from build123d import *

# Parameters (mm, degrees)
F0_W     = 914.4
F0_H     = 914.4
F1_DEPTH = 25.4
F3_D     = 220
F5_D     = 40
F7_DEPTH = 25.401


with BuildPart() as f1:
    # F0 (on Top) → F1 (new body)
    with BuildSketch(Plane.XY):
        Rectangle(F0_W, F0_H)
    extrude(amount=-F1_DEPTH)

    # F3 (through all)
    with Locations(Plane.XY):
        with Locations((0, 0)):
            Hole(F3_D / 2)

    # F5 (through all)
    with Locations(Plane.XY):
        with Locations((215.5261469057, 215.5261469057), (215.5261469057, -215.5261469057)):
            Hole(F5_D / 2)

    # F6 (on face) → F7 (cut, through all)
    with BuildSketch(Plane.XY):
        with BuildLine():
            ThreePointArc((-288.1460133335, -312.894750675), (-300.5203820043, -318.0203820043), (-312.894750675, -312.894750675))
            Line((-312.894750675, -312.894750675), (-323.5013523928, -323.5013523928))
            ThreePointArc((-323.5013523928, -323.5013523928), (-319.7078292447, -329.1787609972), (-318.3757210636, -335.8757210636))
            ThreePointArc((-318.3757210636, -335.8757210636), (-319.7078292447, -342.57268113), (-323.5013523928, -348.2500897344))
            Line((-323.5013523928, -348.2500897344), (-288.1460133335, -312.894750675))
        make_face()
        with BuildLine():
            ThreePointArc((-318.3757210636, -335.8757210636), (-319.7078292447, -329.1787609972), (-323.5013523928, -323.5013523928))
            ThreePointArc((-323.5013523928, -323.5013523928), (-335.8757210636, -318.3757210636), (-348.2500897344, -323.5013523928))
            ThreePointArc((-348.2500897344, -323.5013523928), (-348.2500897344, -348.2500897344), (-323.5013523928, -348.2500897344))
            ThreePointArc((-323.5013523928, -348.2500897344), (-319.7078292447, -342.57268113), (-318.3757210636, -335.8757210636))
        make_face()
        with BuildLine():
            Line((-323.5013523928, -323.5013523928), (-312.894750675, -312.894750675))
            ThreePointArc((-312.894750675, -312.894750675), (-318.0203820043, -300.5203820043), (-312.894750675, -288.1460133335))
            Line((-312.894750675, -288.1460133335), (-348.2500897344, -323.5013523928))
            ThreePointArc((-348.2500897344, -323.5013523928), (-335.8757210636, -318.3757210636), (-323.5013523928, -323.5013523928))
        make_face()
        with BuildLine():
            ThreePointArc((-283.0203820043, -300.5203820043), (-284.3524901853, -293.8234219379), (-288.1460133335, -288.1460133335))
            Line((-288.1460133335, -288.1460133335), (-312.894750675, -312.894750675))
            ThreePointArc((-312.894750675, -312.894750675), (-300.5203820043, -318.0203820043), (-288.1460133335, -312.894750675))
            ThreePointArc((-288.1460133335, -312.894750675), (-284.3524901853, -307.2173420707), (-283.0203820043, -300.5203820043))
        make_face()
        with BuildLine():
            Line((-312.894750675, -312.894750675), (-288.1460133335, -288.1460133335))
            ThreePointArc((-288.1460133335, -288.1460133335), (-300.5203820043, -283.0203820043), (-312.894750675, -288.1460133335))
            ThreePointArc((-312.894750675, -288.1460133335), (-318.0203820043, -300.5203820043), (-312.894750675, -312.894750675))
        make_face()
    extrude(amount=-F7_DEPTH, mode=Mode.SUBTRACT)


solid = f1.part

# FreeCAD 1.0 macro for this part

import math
import FreeCAD as App
import Part
import Sketcher
Q = App.Units.Quantity

doc = App.newDocument("Part")
body = doc.addObject("PartDesign::Body", "Body")

# Sketch on XY plane
sketch1 = body.newObject("Sketcher::SketchObject", "Sketch")
sketch1.AttachmentSupport = (doc.getObject("XY_Plane"), [""])
sketch1.MapMode = "FlatFace"
sketch1.addGeometry(Part.LineSegment(App.Vector(-457.2, 457.2, 0), App.Vector(-457.2, -457.2, 0)), False)
sketch1.addGeometry(Part.LineSegment(App.Vector(-457.2, -457.2, 0), App.Vector(457.2, -457.2, 0)), False)
sketch1.addGeometry(Part.LineSegment(App.Vector(457.2, -457.2, 0), App.Vector(457.2, 457.2, 0)), False)
sketch1.addGeometry(Part.LineSegment(App.Vector(457.2, 457.2, 0), App.Vector(-457.2, 457.2, 0)), False)
sketch1.addConstraint(Sketcher.Constraint("Coincident", 0, 2, 1, 1))
sketch1.addConstraint(Sketcher.Constraint("Coincident", 1, 2, 2, 1))
sketch1.addConstraint(Sketcher.Constraint("Coincident", 2, 2, 3, 1))
sketch1.addConstraint(Sketcher.Constraint("Coincident", 3, 2, 0, 1))
sketch1.addConstraint(Sketcher.Constraint("Vertical", 0))
sketch1.addConstraint(Sketcher.Constraint("Horizontal", 1))
sketch1.addConstraint(Sketcher.Constraint("Vertical", 2))
sketch1.addConstraint(Sketcher.Constraint("Horizontal", 3))
sketch1.addConstraint(Sketcher.Constraint("Symmetric", 0, 2, 2, 2, -1, 1))
sketch1.addConstraint(Sketcher.Constraint("Equal", 3, 0))
sketch1.addConstraint(Sketcher.Constraint("DistanceX", 1, 1, 1, 2, 914.4))
pad1 = body.newObject("PartDesign::Pad", "Pad")
pad1.Profile = sketch1
pad1.Length = 25.4
pad1.Reversed = True

# Sketch on XY plane
sketch2 = body.newObject("Sketcher::SketchObject", "Sketch001")
sketch2.AttachmentSupport = (doc.getObject("XY_Plane"), [""])
sketch2.MapMode = "FlatFace"
sketch2.addGeometry(Part.Circle(App.Vector(0, 0, 0), App.Vector(0, 0, 1), 110), False)
sketch2.addConstraint(Sketcher.Constraint("Coincident", 0, 3, -1, 1))
sketch2.addConstraint(Sketcher.Constraint("Diameter", 0, 220.0))
doc.recompute()
hole = body.newObject("PartDesign::Hole", "Hole")
hole.Profile = sketch2
hole.ThreadType = "None"
hole.Diameter = 220
hole.DepthType = "ThroughAll"

# Sketch on XY plane
sketch3 = body.newObject("Sketcher::SketchObject", "Sketch002")
sketch3.AttachmentSupport = (doc.getObject("XY_Plane"), [""])
sketch3.MapMode = "FlatFace"
sketch3.addGeometry(Part.Circle(App.Vector(215.526147, 215.526147, 0), App.Vector(0, 0, 1), 20), False)
sketch3.addGeometry(Part.Circle(App.Vector(215.526147, -215.526147, 0), App.Vector(0, 0, 1), 20), False)
sketch3.addConstraint(Sketcher.Constraint("Equal", 0, 1))
sketch3.addConstraint(Sketcher.Constraint("Symmetric", 0, 3, 1, 3, -1))
sketch3.addConstraint(Sketcher.Constraint("Diameter", 0, 40.0))
sketch3.addConstraint(Sketcher.Constraint("DistanceX", -1, 1, 0, 3, 215.526147))
sketch3.addConstraint(Sketcher.Constraint("DistanceY", -1, 1, 0, 3, 215.526147))
doc.recompute()
hole2 = body.newObject("PartDesign::Hole", "Hole001")
hole2.Profile = sketch3
hole2.ThreadType = "None"
hole2.Diameter = 40
hole2.DepthType = "ThroughAll"

# Sketch on XY plane
sketch4 = body.newObject("Sketcher::SketchObject", "Sketch003")
sketch4.AttachmentSupport = (doc.getObject("XY_Plane"), [""])
sketch4.MapMode = "FlatFace"
sketch4.addGeometry(Part.LineSegment(App.Vector(-312.894751, -288.146013, 0), App.Vector(-348.25009, -323.501352, 0)), False)
sketch4.addGeometry(Part.ArcOfCircle(Part.Circle(App.Vector(-335.875721, -335.875721, 0), App.Vector(0, 0, 1), 17.5), math.radians(135), math.radians(315)), False)
sketch4.addGeometry(Part.LineSegment(App.Vector(-323.501352, -348.25009, 0), App.Vector(-288.146013, -312.894751, 0)), False)
sketch4.addGeometry(Part.ArcOfCircle(Part.Circle(App.Vector(-300.520382, -300.520382, 0), App.Vector(0, 0, 1), 17.5), math.radians(-45), math.radians(0)), False)
sketch4.addGeometry(Part.ArcOfCircle(Part.Circle(App.Vector(-300.520382, -300.520382, 0), App.Vector(0, 0, 1), 17.5), math.radians(0), math.radians(135)), False)
sketch4.addConstraint(Sketcher.Constraint("Tangent", 0, 2, 1, 1))
sketch4.addConstraint(Sketcher.Constraint("Tangent", 1, 2, 2, 1))
sketch4.addConstraint(Sketcher.Constraint("Tangent", 2, 2, 3, 1))
sketch4.addConstraint(Sketcher.Constraint("Tangent", 3, 2, 4, 1))
sketch4.addConstraint(Sketcher.Constraint("Tangent", 4, 2, 0, 1))
sketch4.addConstraint(Sketcher.Constraint("Equal", 1, 3))
sketch4.addConstraint(Sketcher.Constraint("Equal", 3, 4))
sketch4.addConstraint(Sketcher.Constraint("Horizontal", 4, 3, 3, 2))
sketch4.addConstraint(Sketcher.Constraint("Radius", 1, 17.5))
sketch4.addConstraint(Sketcher.Constraint("Angle", 0, Q("-135 deg")))
sketch4.addConstraint(Sketcher.Constraint("Distance", 0, 50.0))
sketch4.addConstraint(Sketcher.Constraint("DistanceX", 1, 3, -1, 1, 335.875721))
sketch4.addConstraint(Sketcher.Constraint("DistanceY", 1, 3, -1, 1, 335.875721))
pocket1 = body.newObject("PartDesign::Pocket", "Pocket")
pocket1.Profile = sketch4
pocket1.Type = "ThroughAll"

doc.recompute()
